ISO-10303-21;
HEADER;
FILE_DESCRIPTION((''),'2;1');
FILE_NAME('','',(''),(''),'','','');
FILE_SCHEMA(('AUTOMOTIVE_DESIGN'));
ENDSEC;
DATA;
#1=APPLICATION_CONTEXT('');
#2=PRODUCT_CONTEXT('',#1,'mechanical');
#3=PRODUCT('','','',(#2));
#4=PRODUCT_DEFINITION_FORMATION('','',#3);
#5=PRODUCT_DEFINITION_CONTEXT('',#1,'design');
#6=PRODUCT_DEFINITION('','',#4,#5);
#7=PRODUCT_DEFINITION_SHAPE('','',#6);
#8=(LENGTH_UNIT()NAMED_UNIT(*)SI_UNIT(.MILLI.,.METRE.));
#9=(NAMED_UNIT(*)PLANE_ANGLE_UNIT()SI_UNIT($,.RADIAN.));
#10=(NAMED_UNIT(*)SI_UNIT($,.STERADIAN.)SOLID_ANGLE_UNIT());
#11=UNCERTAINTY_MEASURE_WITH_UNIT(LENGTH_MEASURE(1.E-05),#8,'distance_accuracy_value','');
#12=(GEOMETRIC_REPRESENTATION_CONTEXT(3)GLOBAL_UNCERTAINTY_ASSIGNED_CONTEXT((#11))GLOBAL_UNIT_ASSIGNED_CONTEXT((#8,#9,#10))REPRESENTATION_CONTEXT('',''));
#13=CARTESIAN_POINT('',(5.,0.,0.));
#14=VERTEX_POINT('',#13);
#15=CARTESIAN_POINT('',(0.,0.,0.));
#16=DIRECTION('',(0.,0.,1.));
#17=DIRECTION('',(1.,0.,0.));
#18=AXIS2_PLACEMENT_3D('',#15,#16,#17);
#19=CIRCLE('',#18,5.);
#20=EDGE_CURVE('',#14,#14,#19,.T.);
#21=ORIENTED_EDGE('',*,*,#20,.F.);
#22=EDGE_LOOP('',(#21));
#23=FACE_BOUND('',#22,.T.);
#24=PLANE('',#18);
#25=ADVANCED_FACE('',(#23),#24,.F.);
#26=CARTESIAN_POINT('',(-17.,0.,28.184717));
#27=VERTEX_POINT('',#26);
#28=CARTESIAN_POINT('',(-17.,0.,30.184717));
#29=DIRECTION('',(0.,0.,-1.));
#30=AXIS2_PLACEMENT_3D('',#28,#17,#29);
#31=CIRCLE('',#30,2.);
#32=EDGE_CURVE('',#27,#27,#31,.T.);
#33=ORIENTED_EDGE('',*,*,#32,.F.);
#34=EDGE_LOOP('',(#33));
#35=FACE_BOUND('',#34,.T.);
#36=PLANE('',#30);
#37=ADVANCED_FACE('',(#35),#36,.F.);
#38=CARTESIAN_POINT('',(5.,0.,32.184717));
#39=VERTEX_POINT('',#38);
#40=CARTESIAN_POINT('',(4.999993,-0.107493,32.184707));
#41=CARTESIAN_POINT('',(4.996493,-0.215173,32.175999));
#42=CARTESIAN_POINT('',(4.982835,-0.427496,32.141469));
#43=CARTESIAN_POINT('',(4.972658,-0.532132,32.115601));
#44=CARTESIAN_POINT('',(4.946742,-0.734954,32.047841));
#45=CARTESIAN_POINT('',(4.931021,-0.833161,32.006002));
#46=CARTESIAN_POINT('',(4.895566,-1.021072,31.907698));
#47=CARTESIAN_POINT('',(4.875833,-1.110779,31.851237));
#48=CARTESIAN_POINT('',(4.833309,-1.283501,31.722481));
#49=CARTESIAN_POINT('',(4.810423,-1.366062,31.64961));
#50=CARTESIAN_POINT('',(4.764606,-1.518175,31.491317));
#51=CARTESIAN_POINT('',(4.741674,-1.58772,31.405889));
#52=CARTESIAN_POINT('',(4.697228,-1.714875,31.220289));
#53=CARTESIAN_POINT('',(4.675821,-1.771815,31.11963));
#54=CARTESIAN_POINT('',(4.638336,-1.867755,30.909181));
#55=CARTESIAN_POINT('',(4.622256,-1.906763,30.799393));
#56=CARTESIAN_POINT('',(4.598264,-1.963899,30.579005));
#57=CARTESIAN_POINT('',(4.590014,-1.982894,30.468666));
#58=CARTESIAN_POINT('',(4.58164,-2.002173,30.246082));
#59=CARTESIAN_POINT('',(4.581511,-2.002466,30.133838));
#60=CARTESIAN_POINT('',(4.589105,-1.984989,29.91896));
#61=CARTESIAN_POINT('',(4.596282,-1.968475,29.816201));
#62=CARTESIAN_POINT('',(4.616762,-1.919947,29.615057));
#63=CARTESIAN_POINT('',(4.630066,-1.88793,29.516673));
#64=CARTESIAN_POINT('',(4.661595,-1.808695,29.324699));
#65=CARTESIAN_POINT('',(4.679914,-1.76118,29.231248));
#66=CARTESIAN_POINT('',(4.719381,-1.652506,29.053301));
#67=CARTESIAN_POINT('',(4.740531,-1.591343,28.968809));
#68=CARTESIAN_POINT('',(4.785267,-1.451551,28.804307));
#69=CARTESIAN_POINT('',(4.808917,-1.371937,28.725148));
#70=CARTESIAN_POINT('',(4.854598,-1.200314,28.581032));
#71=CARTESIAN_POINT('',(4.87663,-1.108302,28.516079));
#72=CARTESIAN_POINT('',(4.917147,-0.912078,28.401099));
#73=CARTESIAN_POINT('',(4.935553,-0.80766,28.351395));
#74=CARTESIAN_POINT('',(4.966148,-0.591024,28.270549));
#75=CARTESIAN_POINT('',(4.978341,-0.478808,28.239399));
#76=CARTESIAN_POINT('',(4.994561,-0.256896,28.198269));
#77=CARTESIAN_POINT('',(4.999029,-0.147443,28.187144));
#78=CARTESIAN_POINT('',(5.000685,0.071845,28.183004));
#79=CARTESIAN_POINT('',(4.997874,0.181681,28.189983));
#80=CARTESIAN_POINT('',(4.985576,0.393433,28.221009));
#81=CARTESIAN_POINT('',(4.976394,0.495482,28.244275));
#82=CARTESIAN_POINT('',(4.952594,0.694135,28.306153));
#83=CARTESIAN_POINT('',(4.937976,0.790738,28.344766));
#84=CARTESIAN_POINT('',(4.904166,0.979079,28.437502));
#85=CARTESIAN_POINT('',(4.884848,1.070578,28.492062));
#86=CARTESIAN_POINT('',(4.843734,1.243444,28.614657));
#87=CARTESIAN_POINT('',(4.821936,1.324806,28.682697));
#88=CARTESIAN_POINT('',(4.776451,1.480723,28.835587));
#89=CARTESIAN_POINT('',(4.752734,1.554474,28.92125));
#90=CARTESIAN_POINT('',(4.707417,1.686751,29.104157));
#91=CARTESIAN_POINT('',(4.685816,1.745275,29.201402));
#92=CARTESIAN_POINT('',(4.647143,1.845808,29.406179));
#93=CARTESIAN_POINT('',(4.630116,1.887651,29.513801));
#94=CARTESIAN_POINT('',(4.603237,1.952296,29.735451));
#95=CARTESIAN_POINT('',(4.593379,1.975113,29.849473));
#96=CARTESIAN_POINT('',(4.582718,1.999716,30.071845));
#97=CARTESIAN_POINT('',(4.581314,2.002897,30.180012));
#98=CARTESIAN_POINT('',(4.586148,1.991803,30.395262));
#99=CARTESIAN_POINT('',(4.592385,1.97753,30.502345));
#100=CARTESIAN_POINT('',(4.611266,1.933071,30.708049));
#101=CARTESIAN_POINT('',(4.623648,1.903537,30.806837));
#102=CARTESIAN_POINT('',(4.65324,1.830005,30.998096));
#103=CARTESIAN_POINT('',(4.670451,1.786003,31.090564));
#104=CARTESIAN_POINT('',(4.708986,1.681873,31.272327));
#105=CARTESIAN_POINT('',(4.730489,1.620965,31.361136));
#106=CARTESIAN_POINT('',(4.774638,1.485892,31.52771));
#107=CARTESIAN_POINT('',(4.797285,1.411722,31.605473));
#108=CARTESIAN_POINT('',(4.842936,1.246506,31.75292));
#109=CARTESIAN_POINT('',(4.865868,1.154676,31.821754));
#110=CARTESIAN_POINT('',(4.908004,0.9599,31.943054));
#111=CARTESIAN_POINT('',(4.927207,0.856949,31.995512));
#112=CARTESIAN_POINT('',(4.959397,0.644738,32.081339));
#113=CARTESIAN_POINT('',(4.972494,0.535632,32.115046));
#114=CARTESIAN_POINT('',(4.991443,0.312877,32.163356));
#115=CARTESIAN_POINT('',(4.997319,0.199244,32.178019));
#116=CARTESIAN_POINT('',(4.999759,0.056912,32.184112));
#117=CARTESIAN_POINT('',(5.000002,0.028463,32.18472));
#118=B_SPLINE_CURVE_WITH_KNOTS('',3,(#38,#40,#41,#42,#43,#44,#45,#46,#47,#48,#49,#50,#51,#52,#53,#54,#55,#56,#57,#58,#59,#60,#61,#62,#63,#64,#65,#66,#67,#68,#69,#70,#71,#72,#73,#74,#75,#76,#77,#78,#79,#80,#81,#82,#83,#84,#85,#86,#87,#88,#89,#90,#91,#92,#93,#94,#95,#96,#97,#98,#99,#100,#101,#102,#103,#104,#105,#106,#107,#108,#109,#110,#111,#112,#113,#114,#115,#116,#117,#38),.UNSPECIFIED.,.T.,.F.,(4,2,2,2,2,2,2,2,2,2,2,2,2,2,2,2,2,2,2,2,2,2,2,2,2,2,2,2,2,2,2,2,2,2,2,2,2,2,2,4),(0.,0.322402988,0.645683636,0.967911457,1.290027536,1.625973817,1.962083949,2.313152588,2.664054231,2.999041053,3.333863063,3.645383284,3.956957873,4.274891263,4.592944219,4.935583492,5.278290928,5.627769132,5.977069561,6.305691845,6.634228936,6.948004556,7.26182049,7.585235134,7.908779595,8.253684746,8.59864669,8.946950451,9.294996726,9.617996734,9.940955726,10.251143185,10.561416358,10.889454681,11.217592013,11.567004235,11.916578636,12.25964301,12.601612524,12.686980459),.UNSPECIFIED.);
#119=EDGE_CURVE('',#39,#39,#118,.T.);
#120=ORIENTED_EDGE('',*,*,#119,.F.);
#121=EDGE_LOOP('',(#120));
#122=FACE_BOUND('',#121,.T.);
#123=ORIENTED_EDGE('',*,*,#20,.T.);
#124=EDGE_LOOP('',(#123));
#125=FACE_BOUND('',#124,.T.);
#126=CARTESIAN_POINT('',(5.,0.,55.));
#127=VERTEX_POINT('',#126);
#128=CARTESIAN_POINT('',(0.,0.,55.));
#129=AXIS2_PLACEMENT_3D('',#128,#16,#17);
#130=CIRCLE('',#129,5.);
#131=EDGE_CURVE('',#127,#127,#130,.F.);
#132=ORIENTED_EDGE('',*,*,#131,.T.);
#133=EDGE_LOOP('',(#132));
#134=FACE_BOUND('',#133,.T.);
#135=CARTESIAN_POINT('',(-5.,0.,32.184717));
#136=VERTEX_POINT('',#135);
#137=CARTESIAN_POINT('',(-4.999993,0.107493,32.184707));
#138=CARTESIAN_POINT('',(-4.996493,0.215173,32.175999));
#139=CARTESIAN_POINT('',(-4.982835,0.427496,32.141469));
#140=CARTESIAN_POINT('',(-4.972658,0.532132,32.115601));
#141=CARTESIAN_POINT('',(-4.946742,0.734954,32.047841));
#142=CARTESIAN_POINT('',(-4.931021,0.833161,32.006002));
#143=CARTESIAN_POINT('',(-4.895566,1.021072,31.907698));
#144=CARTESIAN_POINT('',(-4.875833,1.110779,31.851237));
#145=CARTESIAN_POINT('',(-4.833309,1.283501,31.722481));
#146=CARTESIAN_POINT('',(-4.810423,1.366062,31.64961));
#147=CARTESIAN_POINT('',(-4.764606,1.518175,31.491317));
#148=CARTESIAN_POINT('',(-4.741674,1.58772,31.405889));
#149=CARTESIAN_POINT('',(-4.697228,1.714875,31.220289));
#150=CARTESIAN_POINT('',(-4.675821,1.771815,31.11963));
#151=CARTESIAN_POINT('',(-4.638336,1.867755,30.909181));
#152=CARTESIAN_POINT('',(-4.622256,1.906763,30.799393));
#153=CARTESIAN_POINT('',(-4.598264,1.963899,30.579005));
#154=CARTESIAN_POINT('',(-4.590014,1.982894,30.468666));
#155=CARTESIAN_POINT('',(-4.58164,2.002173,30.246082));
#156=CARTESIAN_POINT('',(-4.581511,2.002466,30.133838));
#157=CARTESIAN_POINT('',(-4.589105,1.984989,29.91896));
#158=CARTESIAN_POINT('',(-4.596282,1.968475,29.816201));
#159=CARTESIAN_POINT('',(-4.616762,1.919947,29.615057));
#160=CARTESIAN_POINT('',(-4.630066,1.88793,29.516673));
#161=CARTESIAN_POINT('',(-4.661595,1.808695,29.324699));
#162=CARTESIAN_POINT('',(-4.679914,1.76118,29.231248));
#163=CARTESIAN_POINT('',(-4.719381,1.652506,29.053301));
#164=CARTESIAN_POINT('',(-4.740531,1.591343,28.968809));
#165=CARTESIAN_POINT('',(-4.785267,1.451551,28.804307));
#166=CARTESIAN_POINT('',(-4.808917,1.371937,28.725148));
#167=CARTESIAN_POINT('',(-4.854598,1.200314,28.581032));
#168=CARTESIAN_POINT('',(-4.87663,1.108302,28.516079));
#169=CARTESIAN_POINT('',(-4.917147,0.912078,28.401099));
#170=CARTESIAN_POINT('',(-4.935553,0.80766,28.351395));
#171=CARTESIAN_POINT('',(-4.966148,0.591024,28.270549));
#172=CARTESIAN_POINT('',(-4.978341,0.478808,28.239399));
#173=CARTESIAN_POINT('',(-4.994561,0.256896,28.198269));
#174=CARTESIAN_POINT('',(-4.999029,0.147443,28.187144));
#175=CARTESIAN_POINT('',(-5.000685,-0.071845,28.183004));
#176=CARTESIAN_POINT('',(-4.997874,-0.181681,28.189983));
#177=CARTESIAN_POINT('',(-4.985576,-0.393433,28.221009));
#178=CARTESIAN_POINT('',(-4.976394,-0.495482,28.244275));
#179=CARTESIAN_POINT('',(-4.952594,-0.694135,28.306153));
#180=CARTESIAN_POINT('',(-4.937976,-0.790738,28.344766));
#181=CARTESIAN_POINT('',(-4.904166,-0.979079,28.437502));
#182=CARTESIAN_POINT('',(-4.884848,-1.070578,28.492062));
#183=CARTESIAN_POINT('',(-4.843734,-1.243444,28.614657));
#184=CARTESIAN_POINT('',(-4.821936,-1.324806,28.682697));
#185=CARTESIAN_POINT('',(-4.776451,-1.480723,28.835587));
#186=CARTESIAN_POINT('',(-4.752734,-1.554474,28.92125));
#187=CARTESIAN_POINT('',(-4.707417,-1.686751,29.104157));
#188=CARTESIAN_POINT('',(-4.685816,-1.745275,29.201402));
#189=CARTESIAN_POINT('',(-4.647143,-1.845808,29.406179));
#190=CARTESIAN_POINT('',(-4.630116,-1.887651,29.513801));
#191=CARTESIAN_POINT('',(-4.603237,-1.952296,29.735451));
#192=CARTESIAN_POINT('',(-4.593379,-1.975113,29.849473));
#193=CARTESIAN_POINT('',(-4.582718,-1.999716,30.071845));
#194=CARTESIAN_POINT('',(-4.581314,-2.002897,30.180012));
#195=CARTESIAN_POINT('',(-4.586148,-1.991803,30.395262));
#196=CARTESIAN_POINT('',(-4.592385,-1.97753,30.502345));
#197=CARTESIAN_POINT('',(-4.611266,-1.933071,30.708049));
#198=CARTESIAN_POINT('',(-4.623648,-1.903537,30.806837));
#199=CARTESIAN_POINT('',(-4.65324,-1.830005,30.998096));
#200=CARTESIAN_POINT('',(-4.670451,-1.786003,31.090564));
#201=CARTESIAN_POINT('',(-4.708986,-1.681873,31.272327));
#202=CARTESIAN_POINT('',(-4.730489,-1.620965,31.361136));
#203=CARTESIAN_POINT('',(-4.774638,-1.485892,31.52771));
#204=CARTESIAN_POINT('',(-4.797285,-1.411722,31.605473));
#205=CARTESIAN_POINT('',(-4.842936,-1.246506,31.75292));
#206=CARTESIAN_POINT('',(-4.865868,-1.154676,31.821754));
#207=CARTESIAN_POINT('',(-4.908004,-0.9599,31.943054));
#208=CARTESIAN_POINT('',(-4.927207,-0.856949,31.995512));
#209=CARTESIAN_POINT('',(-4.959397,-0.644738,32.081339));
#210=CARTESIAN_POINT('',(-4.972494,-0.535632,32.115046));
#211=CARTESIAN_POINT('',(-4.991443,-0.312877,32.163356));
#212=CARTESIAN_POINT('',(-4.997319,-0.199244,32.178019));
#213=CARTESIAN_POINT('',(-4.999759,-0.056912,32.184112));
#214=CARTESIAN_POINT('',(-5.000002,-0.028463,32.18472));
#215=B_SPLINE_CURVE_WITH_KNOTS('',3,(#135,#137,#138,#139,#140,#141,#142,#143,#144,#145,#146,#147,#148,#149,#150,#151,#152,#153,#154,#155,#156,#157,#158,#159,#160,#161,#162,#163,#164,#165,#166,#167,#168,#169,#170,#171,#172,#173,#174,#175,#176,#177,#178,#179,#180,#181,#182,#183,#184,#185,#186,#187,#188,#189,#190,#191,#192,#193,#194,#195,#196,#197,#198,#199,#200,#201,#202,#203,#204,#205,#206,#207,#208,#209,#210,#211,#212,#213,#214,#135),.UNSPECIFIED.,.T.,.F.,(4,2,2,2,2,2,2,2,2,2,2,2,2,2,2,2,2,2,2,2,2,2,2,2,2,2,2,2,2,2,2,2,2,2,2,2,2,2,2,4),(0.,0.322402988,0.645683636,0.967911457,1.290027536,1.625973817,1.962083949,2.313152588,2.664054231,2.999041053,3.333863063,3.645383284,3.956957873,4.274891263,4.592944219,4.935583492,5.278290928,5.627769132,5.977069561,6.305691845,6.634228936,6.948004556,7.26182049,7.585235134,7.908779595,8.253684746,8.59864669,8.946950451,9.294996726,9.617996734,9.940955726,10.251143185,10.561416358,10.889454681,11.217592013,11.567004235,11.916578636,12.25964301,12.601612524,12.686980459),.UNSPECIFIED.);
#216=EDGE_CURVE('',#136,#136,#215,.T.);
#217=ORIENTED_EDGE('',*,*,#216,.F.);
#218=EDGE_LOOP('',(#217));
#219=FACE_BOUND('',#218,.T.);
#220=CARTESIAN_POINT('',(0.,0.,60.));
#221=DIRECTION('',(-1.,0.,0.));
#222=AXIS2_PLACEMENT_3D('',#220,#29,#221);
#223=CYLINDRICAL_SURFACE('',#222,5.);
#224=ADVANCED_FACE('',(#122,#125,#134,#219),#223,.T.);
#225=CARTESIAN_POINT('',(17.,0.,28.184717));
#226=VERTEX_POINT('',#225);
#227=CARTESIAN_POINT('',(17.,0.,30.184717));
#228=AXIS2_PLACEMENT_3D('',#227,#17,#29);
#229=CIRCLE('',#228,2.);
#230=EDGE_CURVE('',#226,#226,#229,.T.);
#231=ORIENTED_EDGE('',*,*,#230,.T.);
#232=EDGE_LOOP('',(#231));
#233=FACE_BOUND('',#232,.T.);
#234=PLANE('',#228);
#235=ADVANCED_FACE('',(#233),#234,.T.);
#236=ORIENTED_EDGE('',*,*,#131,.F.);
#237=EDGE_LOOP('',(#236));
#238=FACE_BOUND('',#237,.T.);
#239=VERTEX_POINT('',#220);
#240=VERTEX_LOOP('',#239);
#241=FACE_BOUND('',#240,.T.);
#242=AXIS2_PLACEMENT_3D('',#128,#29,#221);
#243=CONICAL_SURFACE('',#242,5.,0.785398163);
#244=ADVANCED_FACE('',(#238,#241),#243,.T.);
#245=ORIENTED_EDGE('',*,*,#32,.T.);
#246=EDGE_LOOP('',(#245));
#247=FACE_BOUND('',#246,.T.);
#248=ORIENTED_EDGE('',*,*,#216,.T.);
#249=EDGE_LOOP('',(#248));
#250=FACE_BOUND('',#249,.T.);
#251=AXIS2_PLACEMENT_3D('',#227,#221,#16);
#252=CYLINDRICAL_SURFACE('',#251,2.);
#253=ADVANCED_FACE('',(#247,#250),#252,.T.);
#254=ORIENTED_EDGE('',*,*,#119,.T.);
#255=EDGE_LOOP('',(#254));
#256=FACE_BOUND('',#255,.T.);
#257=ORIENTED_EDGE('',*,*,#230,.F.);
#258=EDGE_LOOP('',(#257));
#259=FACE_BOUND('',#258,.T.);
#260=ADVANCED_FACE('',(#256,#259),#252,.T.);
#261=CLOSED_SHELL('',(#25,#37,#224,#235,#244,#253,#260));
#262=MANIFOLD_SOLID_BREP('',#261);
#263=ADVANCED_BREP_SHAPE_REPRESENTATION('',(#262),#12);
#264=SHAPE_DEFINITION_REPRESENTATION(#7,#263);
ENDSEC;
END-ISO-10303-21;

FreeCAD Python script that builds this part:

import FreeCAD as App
import Part
import Sketcher


def edges_at(feature, points):
    """Names of the edges that pass closest to the given points."""
    edges = feature.Shape.Edges
    near = lambda p: min(range(len(edges)), key=lambda i: edges[i].distToShape(Part.Vertex(*p))[0])
    return sorted({f"Edge{near(p) + 1}" for p in points})

doc = App.newDocument("Part")
params = doc.addObject("Spreadsheet::Sheet", "Params")
for row, (alias, value) in enumerate([
    ("sketch1_diameter", "10 mm"),
    ("pad1_length", "60 mm"),
    ("chamfer_size", "5 mm"),
    ("sketch2_diameter", "4 mm"),
    ("pad2_length", "34 mm"),
], start=1):
    params.set(f"A{row}", alias)
    params.set(f"B{row}", "=" + value)
    params.setAlias(f"B{row}", alias)

body = doc.addObject("PartDesign::Body", "Body")

sketch1 = body.newObject("Sketcher::SketchObject", "Sketch")
sketch1.AttachmentSupport = (doc.getObject("XY_Plane"), [""])
sketch1.MapMode = "FlatFace"
sketch1.addGeometry(Part.Circle(App.Vector(0, 0, 0), App.Vector(0, 0, 1), 5), False)
sketch1.addConstraint(Sketcher.Constraint("Coincident", 0, 3, -1, 1))
sketch1.addConstraint(Sketcher.Constraint("Diameter", 0, 10.0))
sketch1.setExpression("Constraints[1]", "Params.sketch1_diameter")
pad1 = body.newObject("PartDesign::Pad", "Pad")
pad1.Profile = sketch1
pad1.setExpression("Length", "Params.pad1_length")
doc.recompute()

chamfer = body.newObject("PartDesign::Chamfer", "Chamfer")
chamfer.Base = (pad1, edges_at(pad1, [(-5, 0, 60)]))
chamfer.setExpression("Size", "Params.chamfer_size")

sketch2 = body.newObject("Sketcher::SketchObject", "Sketch001")
sketch2.AttachmentSupport = (doc.getObject("YZ_Plane"), [""])
sketch2.MapMode = "FlatFace"
sketch2.addGeometry(Part.Circle(App.Vector(0, 30.2, 0), App.Vector(0, 0, 1), 2), False)
sketch2.addConstraint(Sketcher.Constraint("PointOnObject", 0, 3, -2))
sketch2.addConstraint(Sketcher.Constraint("Diameter", 0, 4.0))
sketch2.addConstraint(Sketcher.Constraint("DistanceY", -1, 1, 0, 3, 30.184717))
sketch2.setExpression("Constraints[1]", "Params.sketch2_diameter")
pad2 = body.newObject("PartDesign::Pad", "Pad001")
pad2.Profile = sketch2
pad2.setExpression("Length", "Params.pad2_length")
pad2.Midplane = True

doc.recompute()
